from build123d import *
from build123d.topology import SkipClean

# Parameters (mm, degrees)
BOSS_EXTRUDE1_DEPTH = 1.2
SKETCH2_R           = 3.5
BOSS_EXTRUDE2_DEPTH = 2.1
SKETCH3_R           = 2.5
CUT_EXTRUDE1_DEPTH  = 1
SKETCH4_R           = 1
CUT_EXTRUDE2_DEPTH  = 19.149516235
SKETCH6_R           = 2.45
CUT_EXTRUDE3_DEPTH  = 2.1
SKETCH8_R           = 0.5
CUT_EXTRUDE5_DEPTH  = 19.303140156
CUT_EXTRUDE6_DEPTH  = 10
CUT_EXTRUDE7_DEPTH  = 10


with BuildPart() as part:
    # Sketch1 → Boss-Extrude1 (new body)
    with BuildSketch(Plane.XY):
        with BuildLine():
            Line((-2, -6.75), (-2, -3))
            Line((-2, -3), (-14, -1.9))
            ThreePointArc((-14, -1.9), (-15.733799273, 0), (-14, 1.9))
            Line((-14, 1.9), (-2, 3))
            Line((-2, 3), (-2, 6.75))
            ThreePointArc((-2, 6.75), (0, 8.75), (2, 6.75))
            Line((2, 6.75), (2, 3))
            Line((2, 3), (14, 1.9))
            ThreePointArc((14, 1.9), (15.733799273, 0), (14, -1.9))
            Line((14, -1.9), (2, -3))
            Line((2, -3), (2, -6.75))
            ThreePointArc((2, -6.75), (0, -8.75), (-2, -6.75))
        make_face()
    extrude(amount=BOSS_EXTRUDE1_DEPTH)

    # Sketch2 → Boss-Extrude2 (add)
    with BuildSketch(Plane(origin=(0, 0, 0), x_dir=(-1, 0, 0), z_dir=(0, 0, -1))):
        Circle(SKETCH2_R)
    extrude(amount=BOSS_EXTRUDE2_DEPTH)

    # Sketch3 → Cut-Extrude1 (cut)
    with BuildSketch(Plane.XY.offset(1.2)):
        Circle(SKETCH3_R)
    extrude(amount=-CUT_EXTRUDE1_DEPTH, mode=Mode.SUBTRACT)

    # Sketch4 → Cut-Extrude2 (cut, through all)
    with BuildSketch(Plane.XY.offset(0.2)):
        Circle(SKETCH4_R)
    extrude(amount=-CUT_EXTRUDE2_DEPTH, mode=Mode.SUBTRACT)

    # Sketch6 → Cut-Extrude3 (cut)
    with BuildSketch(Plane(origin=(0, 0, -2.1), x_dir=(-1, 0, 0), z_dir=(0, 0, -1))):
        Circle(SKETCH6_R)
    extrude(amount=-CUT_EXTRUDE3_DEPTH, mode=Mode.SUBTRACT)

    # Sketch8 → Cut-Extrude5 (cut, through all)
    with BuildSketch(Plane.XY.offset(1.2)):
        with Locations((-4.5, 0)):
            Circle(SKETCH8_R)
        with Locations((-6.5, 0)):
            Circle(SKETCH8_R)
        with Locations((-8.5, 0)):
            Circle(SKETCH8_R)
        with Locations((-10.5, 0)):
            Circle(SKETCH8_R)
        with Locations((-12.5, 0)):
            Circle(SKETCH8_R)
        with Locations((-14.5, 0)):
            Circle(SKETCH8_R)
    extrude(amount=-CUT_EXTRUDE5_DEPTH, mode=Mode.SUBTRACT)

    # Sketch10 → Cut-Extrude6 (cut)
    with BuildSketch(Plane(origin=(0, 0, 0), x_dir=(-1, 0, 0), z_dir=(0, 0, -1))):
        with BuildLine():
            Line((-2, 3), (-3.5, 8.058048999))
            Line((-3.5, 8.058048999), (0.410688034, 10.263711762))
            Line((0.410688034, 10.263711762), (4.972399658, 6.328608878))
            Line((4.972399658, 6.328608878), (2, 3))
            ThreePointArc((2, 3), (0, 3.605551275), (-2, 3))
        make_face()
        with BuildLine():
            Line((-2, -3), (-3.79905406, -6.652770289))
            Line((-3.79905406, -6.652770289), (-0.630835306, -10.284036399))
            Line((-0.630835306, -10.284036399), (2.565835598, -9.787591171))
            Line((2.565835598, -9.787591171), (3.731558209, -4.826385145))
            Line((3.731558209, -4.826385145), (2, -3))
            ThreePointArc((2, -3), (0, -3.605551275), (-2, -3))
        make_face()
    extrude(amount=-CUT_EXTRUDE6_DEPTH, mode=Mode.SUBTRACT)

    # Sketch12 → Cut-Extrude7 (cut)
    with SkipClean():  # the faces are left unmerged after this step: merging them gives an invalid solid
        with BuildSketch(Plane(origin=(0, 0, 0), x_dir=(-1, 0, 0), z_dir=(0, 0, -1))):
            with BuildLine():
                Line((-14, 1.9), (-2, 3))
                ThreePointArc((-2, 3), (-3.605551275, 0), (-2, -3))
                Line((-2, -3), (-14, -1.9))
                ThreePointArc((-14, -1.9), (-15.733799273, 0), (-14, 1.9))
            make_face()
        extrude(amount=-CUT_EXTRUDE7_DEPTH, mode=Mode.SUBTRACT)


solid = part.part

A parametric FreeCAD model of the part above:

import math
import FreeCAD as App
import Part
import Sketcher
from FreeCAD import Vector
Q = App.Units.Quantity

doc = App.newDocument("Part")
params = doc.addObject("Spreadsheet::Sheet", "Params")
for row, (alias, value) in enumerate([
    ("sketch1_radius", "2 mm"),
    ("sketch1_height", "3.75 mm"),
    ("pad1_length", "1.2 mm"),
    ("sketch2_diameter", "7 mm"),
    ("pad2_length", "2.1 mm"),
    ("sketch3_diameter", "5 mm"),
    ("pocket1_length", "1 mm"),
    ("sketch4_diameter", "2 mm"),
    ("sketch5_diameter", "4.9 mm"),
    ("pocket3_length", "2.1 mm"),
    ("sketch6_diameter", "1 mm"),
    ("pocket5_length", "10 mm"),
    ("pocket6_length", "10 mm"),
], start=1):
    params.set(f"A{row}", alias)
    params.set(f"B{row}", "=" + value)
    params.setAlias(f"B{row}", alias)

body = doc.addObject("PartDesign::Body", "Body")

# Sketch on XY plane
sketch1 = body.newObject("Sketcher::SketchObject", "Sketch")
sketch1.AttachmentSupport = (doc.getObject("XY_Plane"), [""])
sketch1.MapMode = "FlatFace"
sketch1.addGeometry([
    Part.LineSegment(Vector(-2, -3, 0), Vector(-2, -6.75, 0)),  # 0
    Part.ArcOfCircle(Part.Circle(Vector(0, -6.75, 0), Vector(0, 0, 1), 2), math.radians(180), math.radians(360)),  # 1
    Part.LineSegment(Vector(2, -6.75, 0), Vector(2, -3, 0)),  # 2
    Part.LineSegment(Vector(2, -3, 0), Vector(14, -1.9, 0)),  # 3
    Part.ArcOfCircle(Part.Circle(Vector(13.825833, 0, 0), Vector(0, 0, 1), 1.907966), math.radians(-84.762524), math.radians(84.762524)),  # 4
    Part.LineSegment(Vector(14, 1.9, 0), Vector(2, 3, 0)),  # 5
    Part.LineSegment(Vector(2, 3, 0), Vector(2, 6.75, 0)),  # 6
    Part.ArcOfCircle(Part.Circle(Vector(0, 6.75, 0), Vector(0, 0, 1), 2), math.radians(0), math.radians(180)),  # 7
    Part.LineSegment(Vector(-2, 6.75, 0), Vector(-2, 3, 0)),  # 8
    Part.LineSegment(Vector(-2, 3, 0), Vector(-14, 1.9, 0)),  # 9
    Part.ArcOfCircle(Part.Circle(Vector(-13.825833, 0, 0), Vector(0, 0, 1), 1.907966), math.radians(95.237476), math.radians(264.762524)),  # 10
    Part.LineSegment(Vector(-14, -1.9, 0), Vector(-2, -3, 0)),  # 11
], False)
sketch1.addConstraint([
    Sketcher.Constraint("Tangent", 0, 2, 1, 1),
    Sketcher.Constraint("Tangent", 1, 2, 2, 1),
    Sketcher.Constraint("Coincident", 2, 2, 3, 1),
    Sketcher.Constraint("Tangent", 3, 2, 4, 1),
    Sketcher.Constraint("Tangent", 4, 2, 5, 1),
    Sketcher.Constraint("Coincident", 5, 2, 6, 1),
    Sketcher.Constraint("Tangent", 6, 2, 7, 1),
    Sketcher.Constraint("Tangent", 7, 2, 8, 1),
    Sketcher.Constraint("Coincident", 8, 2, 9, 1),
    Sketcher.Constraint("Tangent", 9, 2, 10, 1),
    Sketcher.Constraint("Tangent", 10, 2, 11, 1),
    Sketcher.Constraint("Coincident", 11, 2, 0, 1),
    Sketcher.Constraint("Vertical", 0),
    Sketcher.Constraint("Vertical", 2),
    Sketcher.Constraint("Vertical", 6),
    Sketcher.Constraint("Vertical", 8),
    Sketcher.Constraint("Equal", 1, 7),
    Sketcher.Constraint("Equal", 4, 10),
    Sketcher.Constraint("Symmetric", 1, 3, 7, 3, -1, 1),
    Sketcher.Constraint("Symmetric", 4, 3, 10, 3, -1, 1),
    Sketcher.Constraint("Symmetric", 5, 2, 8, 2, -2),
    Sketcher.Constraint("Symmetric", 3, 2, 10, 2, -2),
    Sketcher.Constraint("Parallel", 3, 9),
    Sketcher.Constraint("Radius", 1, Q("2 mm")),
    Sketcher.Constraint("DistanceY", 2, 2, -1, 1, Q("3 mm")),
    Sketcher.Constraint("DistanceX", -1, 1, 3, 2, Q("14 mm")),
    Sketcher.Constraint("DistanceY", 0, 2, 0, 1, Q("3.75 mm")),
    Sketcher.Constraint("DistanceY", 3, 2, -1, 1, Q("1.9 mm")),
])
sketch1.setExpression("Constraints[23]", "Params.sketch1_radius")
sketch1.setExpression("Constraints[26]", "Params.sketch1_height")
pad1 = body.newObject("PartDesign::Pad", "Pad")
pad1.Profile = sketch1
pad1.setExpression("Length", "Params.pad1_length")

# Sketch on XY plane
sketch2 = body.newObject("Sketcher::SketchObject", "Sketch001")
sketch2.AttachmentSupport = (doc.getObject("XY_Plane"), [""])
sketch2.MapMode = "FlatFace"
sketch2.addGeometry(Part.Circle(Vector(0, 0, 0), Vector(0, 0, 1), 3.5), False)
sketch2.addConstraint([
    Sketcher.Constraint("Coincident", 0, 3, -1, 1),
    Sketcher.Constraint("Diameter", 0, Q("7 mm")),
])
sketch2.setExpression("Constraints[1]", "Params.sketch2_diameter")
pad2 = body.newObject("PartDesign::Pad", "Pad001")
pad2.Profile = sketch2
pad2.setExpression("Length", "Params.pad2_length")
pad2.Reversed = True

# Sketch on XY plane
sketch3 = body.newObject("Sketcher::SketchObject", "Sketch002")
sketch3.AttachmentSupport = (doc.getObject("XY_Plane"), [""])
sketch3.MapMode = "FlatFace"
sketch3.AttachmentOffset = App.Placement(Vector(0, 0, 1.2), App.Rotation())
sketch3.addGeometry(Part.Circle(Vector(0, 0, 0), Vector(0, 0, 1), 2.5), False)
sketch3.addConstraint([
    Sketcher.Constraint("Coincident", 0, 3, -1, 1),
    Sketcher.Constraint("Diameter", 0, Q("5 mm")),
])
sketch3.setExpression("Constraints[1]", "Params.sketch3_diameter")
pocket1 = body.newObject("PartDesign::Pocket", "Pocket")
pocket1.Profile = sketch3
pocket1.setExpression("Length", "Params.pocket1_length")

# Sketch on XY plane
sketch4 = body.newObject("Sketcher::SketchObject", "Sketch003")
sketch4.AttachmentSupport = (doc.getObject("XY_Plane"), [""])
sketch4.MapMode = "FlatFace"
sketch4.AttachmentOffset = App.Placement(Vector(0, 0, 0.2), App.Rotation())
sketch4.addGeometry(Part.Circle(Vector(0, 0, 0), Vector(0, 0, 1), 1), False)
sketch4.addConstraint([
    Sketcher.Constraint("Coincident", 0, 3, -1, 1),
    Sketcher.Constraint("Diameter", 0, Q("2 mm")),
])
sketch4.setExpression("Constraints[1]", "Params.sketch4_diameter")
pocket2 = body.newObject("PartDesign::Pocket", "Pocket001")
pocket2.Profile = sketch4
pocket2.Type = "ThroughAll"

# Sketch on XY plane
sketch5 = body.newObject("Sketcher::SketchObject", "Sketch004")
sketch5.AttachmentSupport = (doc.getObject("XY_Plane"), [""])
sketch5.MapMode = "FlatFace"
sketch5.AttachmentOffset = App.Placement(Vector(0, 0, -2.1), App.Rotation())
sketch5.addGeometry(Part.Circle(Vector(0, 0, 0), Vector(0, 0, 1), 2.45), False)
sketch5.addConstraint([
    Sketcher.Constraint("Coincident", 0, 3, -1, 1),
    Sketcher.Constraint("Diameter", 0, Q("4.9 mm")),
])
sketch5.setExpression("Constraints[1]", "Params.sketch5_diameter")
pocket3 = body.newObject("PartDesign::Pocket", "Pocket002")
pocket3.Profile = sketch5
pocket3.setExpression("Length", "Params.pocket3_length")
pocket3.Reversed = True

# Sketch on XY plane
sketch6 = body.newObject("Sketcher::SketchObject", "Sketch005")
sketch6.AttachmentSupport = (doc.getObject("XY_Plane"), [""])
sketch6.MapMode = "FlatFace"
sketch6.AttachmentOffset = App.Placement(Vector(0, 0, 1.2), App.Rotation())
sketch6.addGeometry([
    Part.Circle(Vector(-4.5, 0, 0), Vector(0, 0, 1), 0.5),  # 0
    Part.Circle(Vector(-6.5, 0, 0), Vector(0, 0, 1), 0.5),  # 1
    Part.Circle(Vector(-8.5, 0, 0), Vector(0, 0, 1), 0.5),  # 2
    Part.Circle(Vector(-10.5, 0, 0), Vector(0, 0, 1), 0.5),  # 3
    Part.Circle(Vector(-12.5, 0, 0), Vector(0, 0, 1), 0.5),  # 4
    Part.Circle(Vector(-14.5, 0, 0), Vector(0, 0, 1), 0.5),  # 5
], False)
sketch6.addConstraint([
    Sketcher.Constraint("Equal", 0, 1),
    Sketcher.Constraint("Equal", 1, 2),
    Sketcher.Constraint("Equal", 2, 3),
    Sketcher.Constraint("Equal", 3, 4),
    Sketcher.Constraint("Equal", 4, 5),
    Sketcher.Constraint("PointOnObject", 0, 3, -1),
    Sketcher.Constraint("PointOnObject", 1, 3, -1),
    Sketcher.Constraint("PointOnObject", 2, 3, -1),
    Sketcher.Constraint("PointOnObject", 3, 3, -1),
    Sketcher.Constraint("PointOnObject", 4, 3, -1),
    Sketcher.Constraint("PointOnObject", 5, 3, -1),
    Sketcher.Constraint("Diameter", 0, Q("1 mm")),
    Sketcher.Constraint("DistanceX", 1, 3, 0, 3, Q("2 mm")),
    Sketcher.Constraint("DistanceX", 2, 3, 1, 3, Q("2 mm")),
    Sketcher.Constraint("DistanceX", 3, 3, 2, 3, Q("2 mm")),
    Sketcher.Constraint("DistanceX", 4, 3, 3, 3, Q("2 mm")),
    Sketcher.Constraint("DistanceX", 5, 3, 4, 3, Q("2 mm")),
    Sketcher.Constraint("DistanceX", 0, 3, -1, 1, Q("4.5 mm")),
])
sketch6.setExpression("Constraints[11]", "Params.sketch6_diameter")
pocket4 = body.newObject("PartDesign::Pocket", "Pocket003")
pocket4.Profile = sketch6
pocket4.Type = "ThroughAll"

# Sketch on XY plane
sketch7 = body.newObject("Sketcher::SketchObject", "Sketch006")
sketch7.AttachmentSupport = (doc.getObject("XY_Plane"), [""])
sketch7.MapMode = "FlatFace"
sketch7.addGeometry([
    Part.LineSegment(Vector(3.5, 8.058049, 0), Vector(2, 3, 0)),  # 0
    Part.ArcOfCircle(Part.Circle(Vector(0, 0, 0), Vector(0, 0, 1), 3.605551), math.radians(56.309933), math.radians(123.690067)),  # 1
    Part.LineSegment(Vector(-2, 3, 0), Vector(-4.9724, 6.328609, 0)),  # 2
    Part.LineSegment(Vector(-4.9724, 6.328609, 0), Vector(-0.410688, 10.263712, 0)),  # 3
    Part.LineSegment(Vector(-0.410688, 10.263712, 0), Vector(3.5, 8.058049, 0)),  # 4
    Part.LineSegment(Vector(2, -3, 0), Vector(3.799054, -6.65277, 0)),  # 5
    Part.LineSegment(Vector(3.799054, -6.65277, 0), Vector(0.630835, -10.284036, 0)),  # 6
    Part.LineSegment(Vector(0.630835, -10.284036, 0), Vector(-2.565836, -9.787591, 0)),  # 7
    Part.LineSegment(Vector(-2.565836, -9.787591, 0), Vector(-3.731558, -4.826385, 0)),  # 8
    Part.LineSegment(Vector(-3.731558, -4.826385, 0), Vector(-2, -3, 0)),  # 9
    Part.ArcOfCircle(Part.Circle(Vector(0, 0, 0), Vector(0, 0, 1), 3.605551), math.radians(-123.690067), math.radians(-56.309933)),  # 10
], False)
sketch7.addConstraint([
    Sketcher.Constraint("Coincident", 0, 2, 1, 1),
    Sketcher.Constraint("Coincident", 1, 2, 2, 1),
    Sketcher.Constraint("Coincident", 2, 2, 3, 1),
    Sketcher.Constraint("Coincident", 3, 2, 4, 1),
    Sketcher.Constraint("Coincident", 4, 2, 0, 1),
    Sketcher.Constraint("Coincident", 5, 2, 6, 1),
    Sketcher.Constraint("Coincident", 6, 2, 7, 1),
    Sketcher.Constraint("Coincident", 7, 2, 8, 1),
    Sketcher.Constraint("Coincident", 8, 2, 9, 1),
    Sketcher.Constraint("Coincident", 9, 2, 10, 1),
    Sketcher.Constraint("Coincident", 10, 2, 5, 1),
    Sketcher.Constraint("Coincident", 1, 3, -1, 1),
    Sketcher.Constraint("Coincident", 10, 3, -1, 1),
    Sketcher.Constraint("Equal", 1, 10),
    Sketcher.Constraint("Horizontal", 0, 2, 1, 2),
    Sketcher.Constraint("Horizontal", 9, 2, 10, 2),
    Sketcher.Constraint("Vertical", 1, 2, 9, 2),
    Sketcher.Constraint("DistanceX", -1, 1, 0, 2, Q("2 mm")),
    Sketcher.Constraint("DistanceY", -1, 1, 0, 2, Q("3 mm")),
    Sketcher.Constraint("DistanceX", -1, 1, 4, 2, Q("3.5 mm")),
    Sketcher.Constraint("Distance", 2, Q("4.4626 mm")),
    Sketcher.Constraint("DistanceX", 2, 2, -1, 1, Q("4.9724 mm")),
    Sketcher.Constraint("Distance", 0, Q("5.27578 mm")),
    Sketcher.Constraint("Distance", 3, Q("6.024471 mm")),
    Sketcher.Constraint("Distance", 5, Q("4.071772 mm")),
    Sketcher.Constraint("Distance", 7, Q("3.23499 mm")),
    Sketcher.Constraint("Distance", 8, Q("5.09632 mm")),
    Sketcher.Constraint("Distance", 9, Q("2.516739 mm")),
    Sketcher.Constraint("DistanceX", 3, 2, -1, 1, Q("0.410688 mm")),
    Sketcher.Constraint("DistanceY", 5, 2, -1, 1, Q("6.65277 mm")),
    Sketcher.Constraint("DistanceY", 7, 2, -1, 1, Q("9.787591 mm")),
    Sketcher.Constraint("DistanceX", 8, 2, -1, 1, Q("3.731558 mm")),
    Sketcher.Constraint("DistanceX", 6, 2, 5, 2, Q("3.168219 mm")),
])
pocket5 = body.newObject("PartDesign::Pocket", "Pocket004")
pocket5.Profile = sketch7
pocket5.setExpression("Length", "Params.pocket5_length")
pocket5.Reversed = True

# Sketch on XY plane
sketch8 = body.newObject("Sketcher::SketchObject", "Sketch007")
sketch8.AttachmentSupport = (doc.getObject("XY_Plane"), [""])
sketch8.MapMode = "FlatFace"
sketch8.addGeometry([
    Part.LineSegment(Vector(2, 3, 0), Vector(14, 1.9, 0)),
    Part.ArcOfCircle(Part.Circle(Vector(13.825833, 0, 0), Vector(0, 0, 1), 1.907966), math.radians(-84.762524), math.radians(84.762524)),
    Part.LineSegment(Vector(14, -1.9, 0), Vector(2, -3, 0)),
    Part.ArcOfCircle(Part.Circle(Vector(0, 0, 0), Vector(0, 0, 1), 3.605551), math.radians(-56.309932), math.radians(56.309932)),
], False)
sketch8.addConstraint([
    Sketcher.Constraint("Tangent", 0, 2, 1, 2),
    Sketcher.Constraint("Tangent", 1, 1, 2, 1),
    Sketcher.Constraint("Coincident", 2, 2, 3, 1),
    Sketcher.Constraint("Coincident", 3, 2, 0, 1),
    Sketcher.Constraint("Coincident", 3, 3, -1, 1),
    Sketcher.Constraint("Symmetric", 0, 2, 1, 1, -1),
    Sketcher.Constraint("DistanceX", -1, 1, 0, 2, Q("14 mm")),
    Sketcher.Constraint("DistanceX", -1, 1, 2, 2, Q("2 mm")),
    Sketcher.Constraint("DistanceY", 2, 2, -1, 1, Q("3 mm")),
    Sketcher.Constraint("DistanceY", -1, 1, 0, 2, Q("1.9 mm")),
])
pocket6 = body.newObject("PartDesign::Pocket", "Pocket005")
pocket6.Profile = sketch8
pocket6.setExpression("Length", "Params.pocket6_length")
pocket6.Reversed = True

doc.recompute()
